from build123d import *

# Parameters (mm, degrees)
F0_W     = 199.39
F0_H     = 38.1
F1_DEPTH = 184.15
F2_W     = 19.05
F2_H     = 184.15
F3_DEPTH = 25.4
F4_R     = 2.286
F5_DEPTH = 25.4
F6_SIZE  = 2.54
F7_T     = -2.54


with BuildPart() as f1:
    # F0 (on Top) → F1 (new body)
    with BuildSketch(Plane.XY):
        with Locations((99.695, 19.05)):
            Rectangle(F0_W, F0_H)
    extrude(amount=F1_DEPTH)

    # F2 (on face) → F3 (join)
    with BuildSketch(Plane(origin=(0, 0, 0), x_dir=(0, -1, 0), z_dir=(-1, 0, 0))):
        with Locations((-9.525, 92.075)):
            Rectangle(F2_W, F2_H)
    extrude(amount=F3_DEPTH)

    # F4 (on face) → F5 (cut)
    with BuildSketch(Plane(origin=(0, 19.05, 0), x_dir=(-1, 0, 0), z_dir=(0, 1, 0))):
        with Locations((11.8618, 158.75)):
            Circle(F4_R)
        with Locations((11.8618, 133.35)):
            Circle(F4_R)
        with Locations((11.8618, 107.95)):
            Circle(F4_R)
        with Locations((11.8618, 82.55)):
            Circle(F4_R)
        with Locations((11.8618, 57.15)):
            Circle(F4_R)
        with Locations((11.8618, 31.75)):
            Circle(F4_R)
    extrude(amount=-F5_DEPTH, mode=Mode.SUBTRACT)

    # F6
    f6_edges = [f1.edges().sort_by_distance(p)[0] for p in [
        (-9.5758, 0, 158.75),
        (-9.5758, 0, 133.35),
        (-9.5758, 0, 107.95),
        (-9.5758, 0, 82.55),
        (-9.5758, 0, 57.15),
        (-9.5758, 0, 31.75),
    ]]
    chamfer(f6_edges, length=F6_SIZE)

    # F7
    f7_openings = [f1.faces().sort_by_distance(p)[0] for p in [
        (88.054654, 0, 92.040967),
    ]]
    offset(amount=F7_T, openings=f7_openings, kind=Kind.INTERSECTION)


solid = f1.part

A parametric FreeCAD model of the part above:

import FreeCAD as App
import Part
import Sketcher
Q = App.Units.Quantity


def edges_at(feature, points):
    """Names of the edges that pass closest to the given points."""
    edges = feature.Shape.Edges
    near = lambda p: min(range(len(edges)), key=lambda i: edges[i].distToShape(Part.Vertex(*p))[0])
    return sorted({f"Edge{near(p) + 1}" for p in points})


def faces_at(feature, points):
    """Names of the faces that lie closest to the given points."""
    faces = feature.Shape.Faces
    near = lambda p: min(range(len(faces)), key=lambda i: faces[i].distToShape(Part.Vertex(*p))[0])
    return sorted({f"Face{near(p) + 1}" for p in points})


def add_polygon(sketch, points):
    """Adds a closed chain of lines whose ends are joined by coincident constraints."""
    first, n = sketch.GeometryCount, len(points)
    for a, b in zip(points, points[1:] + points[:1]):
        sketch.addGeometry(Part.LineSegment(App.Vector(*a, 0), App.Vector(*b, 0)), False)
    for i in range(n):
        sketch.addConstraint(Sketcher.Constraint("Coincident", first + i, 2, first + (i + 1) % n, 1))

doc = App.newDocument("Part")
body = doc.addObject("PartDesign::Body", "Body")

# Sketch on XY plane
sketch1 = body.newObject("Sketcher::SketchObject", "Sketch")
sketch1.AttachmentSupport = (doc.getObject("XY_Plane"), [""])
sketch1.MapMode = "FlatFace"
add_polygon(sketch1, [(0, 38), (0, 0), (199, 0), (199, 38)])  # lines 0-3
sketch1.addConstraint(Sketcher.Constraint("Vertical", 0))
sketch1.addConstraint(Sketcher.Constraint("Horizontal", 1))
sketch1.addConstraint(Sketcher.Constraint("Vertical", 2))
sketch1.addConstraint(Sketcher.Constraint("Horizontal", 3))
sketch1.addConstraint(Sketcher.Constraint("Coincident", 0, 2, -1, 1))
sketch1.addConstraint(Sketcher.Constraint("DistanceY", 0, 2, 0, 1, Q("1.5 in")))
sketch1.addConstraint(Sketcher.Constraint("DistanceX", 1, 1, 1, 2, Q("7.85 in")))
pad1 = body.newObject("PartDesign::Pad", "Pad")
pad1.Profile = sketch1
pad1.Length = Q("7.25 in")

# Sketch on YZ plane
sketch2 = body.newObject("Sketcher::SketchObject", "Sketch001")
sketch2.AttachmentSupport = (doc.getObject("YZ_Plane"), [""])
sketch2.MapMode = "FlatFace"
add_polygon(sketch2, [(19, 184), (19, 0), (0, 0), (0, 184)])  # lines 0-3
sketch2.addConstraint(Sketcher.Constraint("Vertical", 0))
sketch2.addConstraint(Sketcher.Constraint("Horizontal", 1))
sketch2.addConstraint(Sketcher.Constraint("Vertical", 2))
sketch2.addConstraint(Sketcher.Constraint("Horizontal", 3))
sketch2.addConstraint(Sketcher.Constraint("Coincident", 1, 2, -1, 1))
sketch2.addConstraint(Sketcher.Constraint("DistanceX", 1, 2, 1, 1, Q("0.75 in")))
sketch2.addConstraint(Sketcher.Constraint("DistanceY", 0, 2, 0, 1, Q("7.25 in")))
pad2 = body.newObject("PartDesign::Pad", "Pad001")
pad2.Profile = sketch2
pad2.Length = Q("1 in")
pad2.Reversed = True

# Sketch on XZ plane
sketch3 = body.newObject("Sketcher::SketchObject", "Sketch002")
sketch3.AttachmentSupport = (doc.getObject("XZ_Plane"), [""])
sketch3.MapMode = "FlatFace"
sketch3.AttachmentOffset = App.Placement(App.Vector(0, 0, -0.75 * 25.4), App.Rotation())
sketch3.addGeometry(Part.Circle(App.Vector(-11.9, 158.8, 0), App.Vector(0, 0, 1), 2.3), False)
sketch3.addGeometry(Part.Circle(App.Vector(-11.9, 133.3, 0), App.Vector(0, 0, 1), 2.3), False)
sketch3.addGeometry(Part.Circle(App.Vector(-11.9, 108, 0), App.Vector(0, 0, 1), 2.3), False)
sketch3.addGeometry(Part.Circle(App.Vector(-11.9, 82.5, 0), App.Vector(0, 0, 1), 2.3), False)
sketch3.addGeometry(Part.Circle(App.Vector(-11.9, 57.1, 0), App.Vector(0, 0, 1), 2.3), False)
sketch3.addGeometry(Part.Circle(App.Vector(-11.9, 31.8, 0), App.Vector(0, 0, 1), 2.3), False)
sketch3.addConstraint(Sketcher.Constraint("Equal", 0, 1))
sketch3.addConstraint(Sketcher.Constraint("Equal", 1, 2))
sketch3.addConstraint(Sketcher.Constraint("Equal", 2, 3))
sketch3.addConstraint(Sketcher.Constraint("Equal", 3, 4))
sketch3.addConstraint(Sketcher.Constraint("Equal", 4, 5))
sketch3.addConstraint(Sketcher.Constraint("Vertical", 0, 3, 1, 3))
sketch3.addConstraint(Sketcher.Constraint("Vertical", 1, 3, 2, 3))
sketch3.addConstraint(Sketcher.Constraint("Vertical", 2, 3, 3, 3))
sketch3.addConstraint(Sketcher.Constraint("Vertical", 3, 3, 4, 3))
sketch3.addConstraint(Sketcher.Constraint("Vertical", 4, 3, 5, 3))
sketch3.addConstraint(Sketcher.Constraint("Diameter", 0, Q("0.18 in")))
sketch3.addConstraint(Sketcher.Constraint("DistanceY", 1, 3, 0, 3, Q("1 in")))
sketch3.addConstraint(Sketcher.Constraint("DistanceY", 2, 3, 1, 3, Q("1 in")))
sketch3.addConstraint(Sketcher.Constraint("DistanceY", 3, 3, 2, 3, Q("1 in")))
sketch3.addConstraint(Sketcher.Constraint("DistanceY", 4, 3, 3, 3, Q("1 in")))
sketch3.addConstraint(Sketcher.Constraint("DistanceY", 5, 3, 4, 3, Q("1 in")))
sketch3.addConstraint(Sketcher.Constraint("DistanceY", -1, 1, 0, 3, Q("6.25 in")))
sketch3.addConstraint(Sketcher.Constraint("DistanceX", 0, 3, -1, 1, Q("0.467 in")))
pocket1 = body.newObject("PartDesign::Pocket", "Pocket")
pocket1.Profile = sketch3
pocket1.Length = Q("1 in")
pocket1.Reversed = True
doc.recompute()

chamfer = body.newObject("PartDesign::Chamfer", "Chamfer")
chamfer.Base = (pocket1, edges_at(pocket1, [
    (-9.576, 0, 158.75),
    (-9.576, 0, 133.35),
    (-9.576, 0, 107.95),
    (-9.576, 0, 82.55),
    (-9.576, 0, 57.15),
    (-9.576, 0, 31.75),
]))
chamfer.Size = Q("0.1 in")
doc.recompute()

thickness = body.newObject("PartDesign::Thickness", "Thickness")
thickness.Base = (chamfer, faces_at(chamfer, [(86.995, 0, 92.075)]))
thickness.Value = Q("0.1 in")
thickness.Reversed = True
thickness.Join = "Intersection"

doc.recompute()
